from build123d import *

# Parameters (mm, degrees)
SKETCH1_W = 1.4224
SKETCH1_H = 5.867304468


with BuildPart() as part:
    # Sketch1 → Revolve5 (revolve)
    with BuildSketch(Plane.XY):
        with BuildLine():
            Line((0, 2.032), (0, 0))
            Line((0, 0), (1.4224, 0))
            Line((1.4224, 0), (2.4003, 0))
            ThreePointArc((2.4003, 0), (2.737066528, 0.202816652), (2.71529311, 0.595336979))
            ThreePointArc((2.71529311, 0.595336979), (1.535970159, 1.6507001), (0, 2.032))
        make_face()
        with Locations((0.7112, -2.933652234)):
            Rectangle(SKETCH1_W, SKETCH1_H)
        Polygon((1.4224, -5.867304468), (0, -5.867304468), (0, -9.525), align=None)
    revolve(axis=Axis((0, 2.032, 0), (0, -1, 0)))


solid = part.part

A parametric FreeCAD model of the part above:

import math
import FreeCAD as App
import Part
import Sketcher
Q = App.Units.Quantity

doc = App.newDocument("Part")
body = doc.addObject("PartDesign::Body", "Body")

sketch1 = body.newObject("Sketcher::SketchObject", "Sketch")
sketch1.AttachmentSupport = (doc.getObject("XY_Plane"), [""])
sketch1.MapMode = "FlatFace"
sketch1.addGeometry([
    Part.LineSegment(App.Vector(0, 2.03, 0), App.Vector(0, -9.53, 0)),
    Part.LineSegment(App.Vector(0, -9.53, 0), App.Vector(1.42, -5.87, 0)),
    Part.LineSegment(App.Vector(1.42, -5.87, 0), App.Vector(1.42, 0, 0)),
    Part.LineSegment(App.Vector(1.42, 0, 0), App.Vector(2.4, 0, 0)),
    Part.ArcOfCircle(Part.Circle(App.Vector(2.4, 0.38, 0), App.Vector(0, 0, 1), 0.38), math.radians(-90), math.radians(34)),
    Part.ArcOfCircle(Part.Circle(App.Vector(0, -1.25, 0), App.Vector(0, 0, 1), 3.28), math.radians(34), math.radians(90)),
], False)
sketch1.addConstraint([
    Sketcher.Constraint("Coincident", 0, 2, 1, 1),
    Sketcher.Constraint("Coincident", 1, 2, 2, 1),
    Sketcher.Constraint("Coincident", 2, 2, 3, 1),
    Sketcher.Constraint("Tangent", 3, 2, 4, 1),
    Sketcher.Constraint("Tangent", 4, 2, 5, 1),
    Sketcher.Constraint("Coincident", 5, 2, 0, 1),
    Sketcher.Constraint("Vertical", 0),
    Sketcher.Constraint("Vertical", 2),
    Sketcher.Constraint("Horizontal", 3),
    Sketcher.Constraint("PointOnObject", 5, 3, -2),
    Sketcher.Constraint("PointOnObject", 0, 2, -2),
    Sketcher.Constraint("PointOnObject", 2, 2, -1),
    Sketcher.Constraint("Radius", 4, Q("0.015 in")),
    Sketcher.Constraint("DistanceY", 0, 2, 0, 1, Q("0.455 in")),
    Sketcher.Constraint("DistanceY", -1, 1, 5, 2, Q("0.08 in")),
    Sketcher.Constraint("Angle", 1, Q("68.75 deg")),
    Sketcher.Constraint("DistanceX", 3, 1, 3, 2, Q("0.0385 in")),
    Sketcher.Constraint("DistanceX", -1, 1, 1, 2, Q("0.056 in")),
])
revolution = body.newObject("PartDesign::Revolution", "Revolution")
revolution.Profile = sketch1
revolution.ReferenceAxis = (sketch1, ["V_Axis"])
revolution.Angle = 360

doc.recompute()
